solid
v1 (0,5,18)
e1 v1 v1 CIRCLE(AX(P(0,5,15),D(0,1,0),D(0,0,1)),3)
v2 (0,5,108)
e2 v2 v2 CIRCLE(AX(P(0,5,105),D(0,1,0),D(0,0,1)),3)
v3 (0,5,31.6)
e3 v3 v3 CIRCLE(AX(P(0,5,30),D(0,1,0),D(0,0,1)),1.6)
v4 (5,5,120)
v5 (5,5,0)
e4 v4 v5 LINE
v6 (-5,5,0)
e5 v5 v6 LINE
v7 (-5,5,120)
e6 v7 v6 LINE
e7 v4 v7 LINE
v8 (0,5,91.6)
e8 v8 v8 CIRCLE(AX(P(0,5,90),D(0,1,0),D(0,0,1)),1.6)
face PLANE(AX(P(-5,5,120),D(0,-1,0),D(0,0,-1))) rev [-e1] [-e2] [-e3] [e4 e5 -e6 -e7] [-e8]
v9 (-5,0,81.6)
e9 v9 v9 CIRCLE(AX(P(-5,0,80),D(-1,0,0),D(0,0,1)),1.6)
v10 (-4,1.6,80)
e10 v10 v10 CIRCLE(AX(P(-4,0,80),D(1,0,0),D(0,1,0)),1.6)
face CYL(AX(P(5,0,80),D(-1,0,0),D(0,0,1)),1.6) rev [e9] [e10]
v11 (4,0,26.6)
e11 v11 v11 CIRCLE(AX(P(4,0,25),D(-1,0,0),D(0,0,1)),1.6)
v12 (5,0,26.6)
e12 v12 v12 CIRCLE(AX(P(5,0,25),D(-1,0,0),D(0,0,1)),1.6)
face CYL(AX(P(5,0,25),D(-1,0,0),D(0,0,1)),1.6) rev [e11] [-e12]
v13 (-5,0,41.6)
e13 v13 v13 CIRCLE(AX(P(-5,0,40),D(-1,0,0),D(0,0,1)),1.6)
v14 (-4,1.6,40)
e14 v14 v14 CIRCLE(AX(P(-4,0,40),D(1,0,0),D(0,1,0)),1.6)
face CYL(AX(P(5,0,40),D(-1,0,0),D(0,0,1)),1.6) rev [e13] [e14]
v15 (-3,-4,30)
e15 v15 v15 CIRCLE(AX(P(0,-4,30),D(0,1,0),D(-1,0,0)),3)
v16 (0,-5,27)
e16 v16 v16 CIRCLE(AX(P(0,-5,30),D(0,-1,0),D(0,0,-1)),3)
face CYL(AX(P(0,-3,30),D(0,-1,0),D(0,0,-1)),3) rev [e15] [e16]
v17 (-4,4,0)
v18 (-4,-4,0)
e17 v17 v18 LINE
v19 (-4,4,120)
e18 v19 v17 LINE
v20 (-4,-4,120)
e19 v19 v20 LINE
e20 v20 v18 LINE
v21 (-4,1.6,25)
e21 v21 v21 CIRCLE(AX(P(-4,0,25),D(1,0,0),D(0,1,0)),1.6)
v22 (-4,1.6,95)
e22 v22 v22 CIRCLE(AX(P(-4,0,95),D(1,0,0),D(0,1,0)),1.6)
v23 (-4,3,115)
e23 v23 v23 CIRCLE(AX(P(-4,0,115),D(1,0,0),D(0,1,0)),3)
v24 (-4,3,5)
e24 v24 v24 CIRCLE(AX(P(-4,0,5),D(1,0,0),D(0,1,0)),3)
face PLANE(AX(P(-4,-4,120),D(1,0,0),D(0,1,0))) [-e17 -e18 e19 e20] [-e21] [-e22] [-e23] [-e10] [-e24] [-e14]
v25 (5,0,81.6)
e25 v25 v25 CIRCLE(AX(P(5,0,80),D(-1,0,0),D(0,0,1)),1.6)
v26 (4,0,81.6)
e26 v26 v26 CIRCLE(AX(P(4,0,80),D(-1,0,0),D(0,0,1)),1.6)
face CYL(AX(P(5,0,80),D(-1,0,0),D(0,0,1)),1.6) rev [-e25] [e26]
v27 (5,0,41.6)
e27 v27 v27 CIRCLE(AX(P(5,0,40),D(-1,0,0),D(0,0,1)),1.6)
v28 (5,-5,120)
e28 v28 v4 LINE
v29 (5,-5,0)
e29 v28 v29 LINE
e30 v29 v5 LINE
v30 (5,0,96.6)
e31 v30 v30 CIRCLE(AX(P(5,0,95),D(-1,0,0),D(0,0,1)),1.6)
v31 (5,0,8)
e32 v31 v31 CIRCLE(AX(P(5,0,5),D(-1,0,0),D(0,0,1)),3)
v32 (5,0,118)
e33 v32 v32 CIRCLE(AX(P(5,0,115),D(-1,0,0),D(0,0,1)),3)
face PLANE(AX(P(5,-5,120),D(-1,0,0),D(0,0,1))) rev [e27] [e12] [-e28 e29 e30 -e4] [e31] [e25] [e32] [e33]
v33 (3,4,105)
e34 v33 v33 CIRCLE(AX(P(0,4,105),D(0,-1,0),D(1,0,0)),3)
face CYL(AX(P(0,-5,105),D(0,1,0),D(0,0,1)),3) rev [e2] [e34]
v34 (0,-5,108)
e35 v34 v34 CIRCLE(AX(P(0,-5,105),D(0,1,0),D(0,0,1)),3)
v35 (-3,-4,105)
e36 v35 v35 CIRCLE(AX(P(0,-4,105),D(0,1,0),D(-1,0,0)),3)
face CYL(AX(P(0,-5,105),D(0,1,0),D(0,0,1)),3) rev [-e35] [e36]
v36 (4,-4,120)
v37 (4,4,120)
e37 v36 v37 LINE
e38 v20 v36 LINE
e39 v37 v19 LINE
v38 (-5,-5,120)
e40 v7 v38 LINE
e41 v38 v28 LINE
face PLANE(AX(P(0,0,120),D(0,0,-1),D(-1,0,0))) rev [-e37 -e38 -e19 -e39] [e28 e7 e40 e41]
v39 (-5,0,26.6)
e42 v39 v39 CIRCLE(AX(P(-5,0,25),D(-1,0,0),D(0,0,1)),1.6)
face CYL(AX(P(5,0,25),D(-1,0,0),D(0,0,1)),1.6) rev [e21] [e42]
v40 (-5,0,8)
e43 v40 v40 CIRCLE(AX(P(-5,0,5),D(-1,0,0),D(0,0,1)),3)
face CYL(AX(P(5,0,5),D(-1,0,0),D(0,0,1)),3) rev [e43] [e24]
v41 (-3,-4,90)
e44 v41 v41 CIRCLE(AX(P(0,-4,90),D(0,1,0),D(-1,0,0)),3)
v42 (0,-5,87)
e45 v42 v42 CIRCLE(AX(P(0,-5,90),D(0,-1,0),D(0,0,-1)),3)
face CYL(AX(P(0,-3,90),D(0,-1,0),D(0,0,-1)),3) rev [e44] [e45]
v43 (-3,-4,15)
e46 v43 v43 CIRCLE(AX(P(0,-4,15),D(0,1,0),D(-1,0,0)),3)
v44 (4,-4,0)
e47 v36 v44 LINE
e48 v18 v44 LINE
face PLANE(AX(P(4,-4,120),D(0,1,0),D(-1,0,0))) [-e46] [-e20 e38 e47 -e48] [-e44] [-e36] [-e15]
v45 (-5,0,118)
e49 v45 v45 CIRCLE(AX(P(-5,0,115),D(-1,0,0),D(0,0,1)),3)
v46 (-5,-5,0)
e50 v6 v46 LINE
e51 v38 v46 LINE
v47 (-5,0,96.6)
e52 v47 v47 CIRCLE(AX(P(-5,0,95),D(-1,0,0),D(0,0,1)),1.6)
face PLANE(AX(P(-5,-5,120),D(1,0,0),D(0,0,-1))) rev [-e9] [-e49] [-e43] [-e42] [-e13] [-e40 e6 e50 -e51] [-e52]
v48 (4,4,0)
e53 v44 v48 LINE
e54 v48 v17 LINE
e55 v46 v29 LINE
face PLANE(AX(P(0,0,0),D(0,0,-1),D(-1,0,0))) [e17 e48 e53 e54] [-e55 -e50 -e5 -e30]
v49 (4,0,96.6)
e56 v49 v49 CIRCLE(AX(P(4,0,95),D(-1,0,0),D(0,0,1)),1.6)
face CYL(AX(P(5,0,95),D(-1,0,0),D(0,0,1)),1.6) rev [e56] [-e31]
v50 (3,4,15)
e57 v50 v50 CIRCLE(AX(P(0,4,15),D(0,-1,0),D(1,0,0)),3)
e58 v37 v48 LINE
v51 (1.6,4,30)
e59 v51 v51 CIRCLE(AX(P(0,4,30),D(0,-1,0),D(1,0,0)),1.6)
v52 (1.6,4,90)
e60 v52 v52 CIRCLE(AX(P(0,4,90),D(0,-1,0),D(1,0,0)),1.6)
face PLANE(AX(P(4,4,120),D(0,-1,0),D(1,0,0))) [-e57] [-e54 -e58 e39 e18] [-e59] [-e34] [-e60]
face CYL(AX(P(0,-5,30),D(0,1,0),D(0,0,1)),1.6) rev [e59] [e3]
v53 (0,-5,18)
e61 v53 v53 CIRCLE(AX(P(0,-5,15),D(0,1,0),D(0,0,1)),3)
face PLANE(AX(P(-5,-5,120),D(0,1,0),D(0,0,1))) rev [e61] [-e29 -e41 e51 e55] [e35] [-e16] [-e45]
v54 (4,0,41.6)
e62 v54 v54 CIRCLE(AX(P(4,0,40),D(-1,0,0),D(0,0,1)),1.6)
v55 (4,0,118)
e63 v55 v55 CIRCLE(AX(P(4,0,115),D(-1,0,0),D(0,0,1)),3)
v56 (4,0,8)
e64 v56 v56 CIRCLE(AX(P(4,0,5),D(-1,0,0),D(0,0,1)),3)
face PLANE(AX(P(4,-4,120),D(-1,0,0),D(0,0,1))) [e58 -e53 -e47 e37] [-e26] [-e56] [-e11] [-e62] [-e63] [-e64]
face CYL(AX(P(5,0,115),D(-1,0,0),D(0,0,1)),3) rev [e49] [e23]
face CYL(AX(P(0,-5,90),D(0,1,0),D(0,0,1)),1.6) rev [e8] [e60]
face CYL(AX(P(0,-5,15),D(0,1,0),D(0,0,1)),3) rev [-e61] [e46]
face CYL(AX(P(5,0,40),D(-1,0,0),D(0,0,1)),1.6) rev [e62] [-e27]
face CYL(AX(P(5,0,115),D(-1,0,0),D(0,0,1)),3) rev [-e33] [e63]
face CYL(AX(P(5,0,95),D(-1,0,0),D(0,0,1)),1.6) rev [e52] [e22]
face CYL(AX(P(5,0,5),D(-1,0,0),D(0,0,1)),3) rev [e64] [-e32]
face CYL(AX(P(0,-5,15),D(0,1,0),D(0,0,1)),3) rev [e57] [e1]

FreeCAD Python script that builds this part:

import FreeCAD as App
import Part
import Sketcher
from FreeCAD import Vector
Q = App.Units.Quantity

doc = App.newDocument("Part")
params = doc.addObject("Spreadsheet::Sheet", "Params")
for row, (alias, value) in enumerate([
    ("sketch1_width", "10 mm"),
    ("sketch1_width2", "8 mm"),
    ("pad1_length", "120 mm"),
    ("sketch2_diameter", "6 mm"),
    ("sketch3_diameter", "6 mm"),
    ("pocket2_length", "10 mm"),
    ("sketch4_diameter", "3.2 mm"),
    ("pocket3_length", "10 mm"),
    ("sketch5_diameter", "3.2 mm"),
    ("sketch6_diameter", "6 mm"),
    ("pocket5_length", "2 mm"),
    ("sketch7_diameter", "3.2 mm"),
], start=1):
    params.set(f"A{row}", alias)
    params.set(f"B{row}", "=" + value)
    params.setAlias(f"B{row}", alias)

body = doc.addObject("PartDesign::Body", "Body")

# Sketch on XY plane
sketch1 = doc.addObject("Sketcher::SketchObject", "Sketch")
body.addObject(sketch1)
sketch1.AttachmentSupport = (doc.XY_Plane, [""])
sketch1.MapMode = "FlatFace"
sketch1.addGeometry(Part.LineSegment(Vector(-5, 5, 0), Vector(-5, -5, 0)), False)
sketch1.addGeometry(Part.LineSegment(Vector(-5, -5, 0), Vector(5, -5, 0)), False)
sketch1.addGeometry(Part.LineSegment(Vector(5, -5, 0), Vector(5, 5, 0)), False)
sketch1.addGeometry(Part.LineSegment(Vector(5, 5, 0), Vector(-5, 5, 0)), False)
sketch1.addGeometry(Part.LineSegment(Vector(4, -4, 0), Vector(-4, -4, 0)), False)
sketch1.addGeometry(Part.LineSegment(Vector(-4, -4, 0), Vector(-4, 4, 0)), False)
sketch1.addGeometry(Part.LineSegment(Vector(-4, 4, 0), Vector(4, 4, 0)), False)
sketch1.addGeometry(Part.LineSegment(Vector(4, 4, 0), Vector(4, -4, 0)), False)
sketch1.addConstraint(Sketcher.Constraint("Coincident", 0, 2, 1, 1))
sketch1.addConstraint(Sketcher.Constraint("Coincident", 1, 2, 2, 1))
sketch1.addConstraint(Sketcher.Constraint("Coincident", 2, 2, 3, 1))
sketch1.addConstraint(Sketcher.Constraint("Coincident", 3, 2, 0, 1))
sketch1.addConstraint(Sketcher.Constraint("Coincident", 4, 2, 5, 1))
sketch1.addConstraint(Sketcher.Constraint("Coincident", 5, 2, 6, 1))
sketch1.addConstraint(Sketcher.Constraint("Coincident", 6, 2, 7, 1))
sketch1.addConstraint(Sketcher.Constraint("Coincident", 7, 2, 4, 1))
sketch1.addConstraint(Sketcher.Constraint("Vertical", 0))
sketch1.addConstraint(Sketcher.Constraint("Horizontal", 1))
sketch1.addConstraint(Sketcher.Constraint("Vertical", 2))
sketch1.addConstraint(Sketcher.Constraint("Horizontal", 3))
sketch1.addConstraint(Sketcher.Constraint("Horizontal", 4))
sketch1.addConstraint(Sketcher.Constraint("Vertical", 5))
sketch1.addConstraint(Sketcher.Constraint("Horizontal", 6))
sketch1.addConstraint(Sketcher.Constraint("Vertical", 7))
sketch1.addConstraint(Sketcher.Constraint("Symmetric", 0, 2, 2, 2, -1, 1))
sketch1.addConstraint(Sketcher.Constraint("Symmetric", 4, 2, 6, 2, -1, 1))
sketch1.addConstraint(Sketcher.Constraint("Equal", 3, 0))
sketch1.addConstraint(Sketcher.Constraint("Equal", 6, 5))
sketch1.addConstraint(Sketcher.Constraint("DistanceX", 1, 1, 1, 2, Q("10 mm")))
sketch1.addConstraint(Sketcher.Constraint("DistanceX", 4, 2, 4, 1, Q("8 mm")))
sketch1.setExpression("Constraints[20]", "Params.sketch1_width")
sketch1.setExpression("Constraints[21]", "Params.sketch1_width2")
pad1 = doc.addObject("PartDesign::Pad", "Pad")
body.addObject(pad1)
pad1.Profile = sketch1
pad1.setExpression("Length", "Params.pad1_length")

# Sketch on YZ plane
sketch2 = doc.addObject("Sketcher::SketchObject", "Sketch001")
body.addObject(sketch2)
sketch2.AttachmentSupport = (doc.YZ_Plane, [""])
sketch2.MapMode = "FlatFace"
sketch2.AttachmentOffset = App.Placement(Vector(0, 0, -5), App.Rotation())
sketch2.addGeometry(Part.Circle(Vector(0, 5, 0), Vector(0, 0, 1), 3), False)
sketch2.addGeometry(Part.Circle(Vector(0, 115, 0), Vector(0, 0, 1), 3), False)
sketch2.addConstraint(Sketcher.Constraint("Equal", 0, 1))
sketch2.addConstraint(Sketcher.Constraint("PointOnObject", 0, 3, -2))
sketch2.addConstraint(Sketcher.Constraint("PointOnObject", 1, 3, -2))
sketch2.addConstraint(Sketcher.Constraint("Diameter", 0, Q("6 mm")))
sketch2.addConstraint(Sketcher.Constraint("DistanceY", -1, 1, 0, 3, Q("5 mm")))
sketch2.addConstraint(Sketcher.Constraint("DistanceY", -1, 1, 1, 3, Q("115 mm")))
sketch2.setExpression("Constraints[3]", "Params.sketch2_diameter")
pocket1 = doc.addObject("PartDesign::Pocket", "Pocket")
body.addObject(pocket1)
pocket1.Profile = sketch2
pocket1.Type = "ThroughAll"
pocket1.Reversed = True

# Sketch on XZ plane
sketch3 = doc.addObject("Sketcher::SketchObject", "Sketch002")
body.addObject(sketch3)
sketch3.AttachmentSupport = (doc.XZ_Plane, [""])
sketch3.MapMode = "FlatFace"
sketch3.AttachmentOffset = App.Placement(Vector(0, 0, -5), App.Rotation())
sketch3.addGeometry(Part.Circle(Vector(0, 105, 0), Vector(0, 0, 1), 3), False)
sketch3.addGeometry(Part.Circle(Vector(0, 15, 0), Vector(0, 0, 1), 3), False)
sketch3.addConstraint(Sketcher.Constraint("Equal", 0, 1))
sketch3.addConstraint(Sketcher.Constraint("PointOnObject", 0, 3, -2))
sketch3.addConstraint(Sketcher.Constraint("PointOnObject", 1, 3, -2))
sketch3.addConstraint(Sketcher.Constraint("Diameter", 0, Q("6 mm")))
sketch3.addConstraint(Sketcher.Constraint("DistanceY", -1, 1, 0, 3, Q("105 mm")))
sketch3.addConstraint(Sketcher.Constraint("DistanceY", -1, 1, 1, 3, Q("15 mm")))
sketch3.setExpression("Constraints[3]", "Params.sketch3_diameter")
pocket2 = doc.addObject("PartDesign::Pocket", "Pocket001")
body.addObject(pocket2)
pocket2.Profile = sketch3
pocket2.setExpression("Length", "Params.pocket2_length")
pocket2.Reversed = True

# Sketch on XZ plane
sketch4 = doc.addObject("Sketcher::SketchObject", "Sketch003")
body.addObject(sketch4)
sketch4.AttachmentSupport = (doc.XZ_Plane, [""])
sketch4.MapMode = "FlatFace"
sketch4.AttachmentOffset = App.Placement(Vector(0, 0, -5), App.Rotation())
sketch4.addGeometry(Part.Circle(Vector(0, 30, 0), Vector(0, 0, 1), 1.6), False)
sketch4.addGeometry(Part.Circle(Vector(0, 90, 0), Vector(0, 0, 1), 1.6), False)
sketch4.addConstraint(Sketcher.Constraint("Equal", 0, 1))
sketch4.addConstraint(Sketcher.Constraint("PointOnObject", 0, 3, -2))
sketch4.addConstraint(Sketcher.Constraint("PointOnObject", 1, 3, -2))
sketch4.addConstraint(Sketcher.Constraint("Diameter", 0, Q("3.2 mm")))
sketch4.addConstraint(Sketcher.Constraint("DistanceY", -1, 1, 0, 3, Q("30 mm")))
sketch4.addConstraint(Sketcher.Constraint("DistanceY", -1, 1, 1, 3, Q("90 mm")))
sketch4.setExpression("Constraints[3]", "Params.sketch4_diameter")
pocket3 = doc.addObject("PartDesign::Pocket", "Pocket002")
body.addObject(pocket3)
pocket3.Profile = sketch4
pocket3.setExpression("Length", "Params.pocket3_length")
pocket3.Reversed = True

# Sketch on YZ plane
sketch5 = doc.addObject("Sketcher::SketchObject", "Sketch004")
body.addObject(sketch5)
sketch5.AttachmentSupport = (doc.YZ_Plane, [""])
sketch5.MapMode = "FlatFace"
sketch5.AttachmentOffset = App.Placement(Vector(0, 0, -5), App.Rotation())
sketch5.addGeometry(Part.Circle(Vector(0, 25, 0), Vector(0, 0, 1), 1.6), False)
sketch5.addGeometry(Part.Circle(Vector(0, 95, 0), Vector(0, 0, 1), 1.6), False)
sketch5.addConstraint(Sketcher.Constraint("Equal", 0, 1))
sketch5.addConstraint(Sketcher.Constraint("PointOnObject", 0, 3, -2))
sketch5.addConstraint(Sketcher.Constraint("PointOnObject", 1, 3, -2))
sketch5.addConstraint(Sketcher.Constraint("Diameter", 0, Q("3.2 mm")))
sketch5.addConstraint(Sketcher.Constraint("DistanceY", -1, 1, 0, 3, Q("25 mm")))
sketch5.addConstraint(Sketcher.Constraint("DistanceY", -1, 1, 1, 3, Q("95 mm")))
sketch5.setExpression("Constraints[3]", "Params.sketch5_diameter")
pocket4 = doc.addObject("PartDesign::Pocket", "Pocket003")
body.addObject(pocket4)
pocket4.Profile = sketch5
pocket4.Type = "ThroughAll"
pocket4.Reversed = True

# Sketch on XZ plane
sketch6 = doc.addObject("Sketcher::SketchObject", "Sketch005")
body.addObject(sketch6)
sketch6.AttachmentSupport = (doc.XZ_Plane, [""])
sketch6.MapMode = "FlatFace"
sketch6.AttachmentOffset = App.Placement(Vector(0, 0, 5), App.Rotation())
sketch6.addGeometry(Part.Circle(Vector(0, 30, 0), Vector(0, 0, 1), 3), False)
sketch6.addGeometry(Part.Circle(Vector(0, 90, 0), Vector(0, 0, 1), 3), False)
sketch6.addConstraint(Sketcher.Constraint("Equal", 0, 1))
sketch6.addConstraint(Sketcher.Constraint("PointOnObject", 0, 3, -2))
sketch6.addConstraint(Sketcher.Constraint("PointOnObject", 1, 3, -2))
sketch6.addConstraint(Sketcher.Constraint("Diameter", 0, Q("6 mm")))
sketch6.addConstraint(Sketcher.Constraint("DistanceY", -1, 1, 0, 3, Q("30 mm")))
sketch6.addConstraint(Sketcher.Constraint("DistanceY", -1, 1, 1, 3, Q("90 mm")))
sketch6.setExpression("Constraints[3]", "Params.sketch6_diameter")
pocket5 = doc.addObject("PartDesign::Pocket", "Pocket004")
body.addObject(pocket5)
pocket5.Profile = sketch6
pocket5.setExpression("Length", "Params.pocket5_length")

# Sketch on YZ plane
sketch7 = doc.addObject("Sketcher::SketchObject", "Sketch006")
body.addObject(sketch7)
sketch7.AttachmentSupport = (doc.YZ_Plane, [""])
sketch7.MapMode = "FlatFace"
sketch7.AttachmentOffset = App.Placement(Vector(0, 0, -5), App.Rotation())
sketch7.addGeometry(Part.Circle(Vector(0, 80, 0), Vector(0, 0, 1), 1.6), False)
sketch7.addGeometry(Part.Circle(Vector(0, 40, 0), Vector(0, 0, 1), 1.6), False)
sketch7.addConstraint(Sketcher.Constraint("Equal", 0, 1))
sketch7.addConstraint(Sketcher.Constraint("PointOnObject", 0, 3, -2))
sketch7.addConstraint(Sketcher.Constraint("PointOnObject", 1, 3, -2))
sketch7.addConstraint(Sketcher.Constraint("Diameter", 0, Q("3.2 mm")))
sketch7.addConstraint(Sketcher.Constraint("DistanceY", -1, 1, 0, 3, Q("80 mm")))
sketch7.addConstraint(Sketcher.Constraint("DistanceY", -1, 1, 1, 3, Q("40 mm")))
sketch7.setExpression("Constraints[3]", "Params.sketch7_diameter")
pocket6 = doc.addObject("PartDesign::Pocket", "Pocket005")
body.addObject(pocket6)
pocket6.Profile = sketch7
pocket6.Type = "ThroughAll"
pocket6.Reversed = True

doc.recompute()
